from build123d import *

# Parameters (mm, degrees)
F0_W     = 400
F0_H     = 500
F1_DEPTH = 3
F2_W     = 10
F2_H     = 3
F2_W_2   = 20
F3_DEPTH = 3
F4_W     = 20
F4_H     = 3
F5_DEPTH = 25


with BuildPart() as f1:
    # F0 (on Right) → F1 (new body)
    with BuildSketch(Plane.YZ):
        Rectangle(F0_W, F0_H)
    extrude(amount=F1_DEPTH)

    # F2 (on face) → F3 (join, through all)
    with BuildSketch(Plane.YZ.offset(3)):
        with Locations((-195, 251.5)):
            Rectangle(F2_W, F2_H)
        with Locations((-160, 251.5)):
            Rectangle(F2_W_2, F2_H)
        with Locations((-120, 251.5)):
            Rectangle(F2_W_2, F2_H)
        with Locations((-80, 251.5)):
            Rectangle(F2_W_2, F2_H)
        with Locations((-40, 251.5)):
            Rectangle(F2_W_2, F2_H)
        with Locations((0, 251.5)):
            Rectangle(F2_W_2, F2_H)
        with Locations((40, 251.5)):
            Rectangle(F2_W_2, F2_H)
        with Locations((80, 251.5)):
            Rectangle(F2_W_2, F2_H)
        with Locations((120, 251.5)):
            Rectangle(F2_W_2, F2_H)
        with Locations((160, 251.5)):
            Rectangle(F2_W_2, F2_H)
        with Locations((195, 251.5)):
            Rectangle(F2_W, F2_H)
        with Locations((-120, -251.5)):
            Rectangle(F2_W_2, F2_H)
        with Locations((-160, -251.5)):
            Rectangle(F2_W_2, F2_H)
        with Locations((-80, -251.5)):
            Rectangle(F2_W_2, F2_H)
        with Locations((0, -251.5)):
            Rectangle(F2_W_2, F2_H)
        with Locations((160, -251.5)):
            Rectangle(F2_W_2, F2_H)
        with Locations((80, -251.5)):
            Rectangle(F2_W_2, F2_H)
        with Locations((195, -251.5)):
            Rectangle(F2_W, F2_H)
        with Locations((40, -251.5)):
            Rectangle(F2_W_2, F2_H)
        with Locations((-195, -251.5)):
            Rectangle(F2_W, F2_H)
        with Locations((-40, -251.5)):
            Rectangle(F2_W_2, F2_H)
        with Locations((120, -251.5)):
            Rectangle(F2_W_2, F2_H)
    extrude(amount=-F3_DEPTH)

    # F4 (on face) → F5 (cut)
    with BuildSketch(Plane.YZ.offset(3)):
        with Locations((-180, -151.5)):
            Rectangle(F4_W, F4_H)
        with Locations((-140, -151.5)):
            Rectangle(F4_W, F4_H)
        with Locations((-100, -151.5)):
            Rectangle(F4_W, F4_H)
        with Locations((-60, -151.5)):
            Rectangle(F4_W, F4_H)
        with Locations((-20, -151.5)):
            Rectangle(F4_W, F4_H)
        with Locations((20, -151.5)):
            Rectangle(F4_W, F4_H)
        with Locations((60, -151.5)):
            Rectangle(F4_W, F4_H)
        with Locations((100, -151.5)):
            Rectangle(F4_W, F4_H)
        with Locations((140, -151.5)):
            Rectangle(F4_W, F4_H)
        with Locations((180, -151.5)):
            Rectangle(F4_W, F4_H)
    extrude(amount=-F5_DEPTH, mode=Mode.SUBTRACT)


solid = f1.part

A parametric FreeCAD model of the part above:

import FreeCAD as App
import Part
import Sketcher
Q = App.Units.Quantity


def add_polygon(sketch, points):
    """Adds a closed chain of lines whose ends are joined by coincident constraints."""
    first, n = sketch.GeometryCount, len(points)
    for a, b in zip(points, points[1:] + points[:1]):
        sketch.addGeometry(Part.LineSegment(App.Vector(*a, 0), App.Vector(*b, 0)), False)
    for i in range(n):
        sketch.addConstraint(Sketcher.Constraint("Coincident", first + i, 2, first + (i + 1) % n, 1))

doc = App.newDocument("Part")
params = doc.addObject("Spreadsheet::Sheet", "Params")
for row, (alias, value) in enumerate([
    ("sketch1_width", "400 mm"),
    ("sketch1_height", "500 mm"),
    ("pad1_length", "3 mm"),
    ("sketch2_width", "10 mm"),
    ("sketch2_width2", "20 mm"),
    ("sketch2_height", "3 mm"),
    ("sketch3_width", "20 mm"),
    ("sketch3_height", "3 mm"),
    ("pocket1_length", "25 mm"),
], start=1):
    params.set(f"A{row}", alias)
    params.set(f"B{row}", "=" + value)
    params.setAlias(f"B{row}", alias)

body = doc.addObject("PartDesign::Body", "Body")

# Sketch on YZ plane
sketch1 = body.newObject("Sketcher::SketchObject", "Sketch")
sketch1.AttachmentSupport = (doc.getObject("YZ_Plane"), [""])
sketch1.MapMode = "FlatFace"
add_polygon(sketch1, [(-200, 250), (-200, -250), (200, -250), (200, 250)])  # lines 0-3
sketch1.addConstraint(Sketcher.Constraint("Vertical", 0))
sketch1.addConstraint(Sketcher.Constraint("Horizontal", 1))
sketch1.addConstraint(Sketcher.Constraint("Vertical", 2))
sketch1.addConstraint(Sketcher.Constraint("Horizontal", 3))
sketch1.addConstraint(Sketcher.Constraint("Symmetric", 0, 2, 2, 2, -1, 1))
sketch1.addConstraint(Sketcher.Constraint("DistanceX", 1, 1, 1, 2, Q("400 mm")))
sketch1.addConstraint(Sketcher.Constraint("DistanceY", 0, 2, 0, 1, Q("500 mm")))
sketch1.setExpression("Constraints[9]", "Params.sketch1_width")
sketch1.setExpression("Constraints[10]", "Params.sketch1_height")
pad1 = body.newObject("PartDesign::Pad", "Pad")
pad1.Profile = sketch1
pad1.setExpression("Length", "Params.pad1_length")

# Sketch on YZ plane
sketch2 = body.newObject("Sketcher::SketchObject", "Sketch001")
sketch2.AttachmentSupport = (doc.getObject("YZ_Plane"), [""])
sketch2.MapMode = "FlatFace"
sketch2.AttachmentOffset = App.Placement(App.Vector(0, 0, 3), App.Rotation())
add_polygon(sketch2, [(-200, 253), (-200, 250), (-190, 250), (-190, 253)])  # lines 0-3
add_polygon(sketch2, [(-170, 253), (-170, 250), (-150, 250), (-150, 253)])  # lines 4-7
add_polygon(sketch2, [(-130, 253), (-130, 250), (-110, 250), (-110, 253)])  # lines 8-11
add_polygon(sketch2, [(-90, 253), (-90, 250), (-70, 250), (-70, 253)])  # lines 12-15
add_polygon(sketch2, [(-50, 253), (-50, 250), (-30, 250), (-30, 253)])  # lines 16-19
add_polygon(sketch2, [(-10, 253), (-10, 250), (10, 250), (10, 253)])  # lines 20-23
add_polygon(sketch2, [(30, 253), (30, 250), (50, 250), (50, 253)])  # lines 24-27
add_polygon(sketch2, [(70, 253), (70, 250), (90, 250), (90, 253)])  # lines 28-31
add_polygon(sketch2, [(110, 253), (110, 250), (130, 250), (130, 253)])  # lines 32-35
add_polygon(sketch2, [(150, 253), (150, 250), (170, 250), (170, 253)])  # lines 36-39
add_polygon(sketch2, [(190, 253), (190, 250), (200, 250), (200, 253)])  # lines 40-43
add_polygon(sketch2, [(-130, -250), (-130, -253), (-110, -253), (-110, -250)])  # lines 44-47
add_polygon(sketch2, [(-170, -250), (-170, -253), (-150, -253), (-150, -250)])  # lines 48-51
add_polygon(sketch2, [(-90, -250), (-90, -253), (-70, -253), (-70, -250)])  # lines 52-55
add_polygon(sketch2, [(-10, -250), (-10, -253), (10, -253), (10, -250)])  # lines 56-59
add_polygon(sketch2, [(150, -250), (150, -253), (170, -253), (170, -250)])  # lines 60-63
add_polygon(sketch2, [(70, -250), (70, -253), (90, -253), (90, -250)])  # lines 64-67
add_polygon(sketch2, [(190, -250), (190, -253), (200, -253), (200, -250)])  # lines 68-71
add_polygon(sketch2, [(30, -250), (30, -253), (50, -253), (50, -250)])  # lines 72-75
add_polygon(sketch2, [(-200, -250), (-200, -253), (-190, -253), (-190, -250)])  # lines 76-79
add_polygon(sketch2, [(-50, -250), (-50, -253), (-30, -253), (-30, -250)])  # lines 80-83
add_polygon(sketch2, [(110, -250), (110, -253), (130, -253), (130, -250)])  # lines 84-87
sketch2.addConstraint(Sketcher.Constraint("Vertical", 0))
sketch2.addConstraint(Sketcher.Constraint("Horizontal", 1))
sketch2.addConstraint(Sketcher.Constraint("Vertical", 2))
sketch2.addConstraint(Sketcher.Constraint("Horizontal", 3))
sketch2.addConstraint(Sketcher.Constraint("Vertical", 4))
sketch2.addConstraint(Sketcher.Constraint("Horizontal", 5))
sketch2.addConstraint(Sketcher.Constraint("Vertical", 6))
sketch2.addConstraint(Sketcher.Constraint("Horizontal", 7))
sketch2.addConstraint(Sketcher.Constraint("Vertical", 8))
sketch2.addConstraint(Sketcher.Constraint("Horizontal", 9))
sketch2.addConstraint(Sketcher.Constraint("Vertical", 10))
sketch2.addConstraint(Sketcher.Constraint("Horizontal", 11))
sketch2.addConstraint(Sketcher.Constraint("Vertical", 12))
sketch2.addConstraint(Sketcher.Constraint("Horizontal", 13))
sketch2.addConstraint(Sketcher.Constraint("Vertical", 14))
sketch2.addConstraint(Sketcher.Constraint("Horizontal", 15))
sketch2.addConstraint(Sketcher.Constraint("Vertical", 16))
sketch2.addConstraint(Sketcher.Constraint("Horizontal", 17))
sketch2.addConstraint(Sketcher.Constraint("Vertical", 18))
sketch2.addConstraint(Sketcher.Constraint("Horizontal", 19))
sketch2.addConstraint(Sketcher.Constraint("Vertical", 20))
sketch2.addConstraint(Sketcher.Constraint("Horizontal", 21))
sketch2.addConstraint(Sketcher.Constraint("Vertical", 22))
sketch2.addConstraint(Sketcher.Constraint("Horizontal", 23))
sketch2.addConstraint(Sketcher.Constraint("Vertical", 24))
sketch2.addConstraint(Sketcher.Constraint("Horizontal", 25))
sketch2.addConstraint(Sketcher.Constraint("Vertical", 26))
sketch2.addConstraint(Sketcher.Constraint("Horizontal", 27))
sketch2.addConstraint(Sketcher.Constraint("Vertical", 28))
sketch2.addConstraint(Sketcher.Constraint("Horizontal", 29))
sketch2.addConstraint(Sketcher.Constraint("Vertical", 30))
sketch2.addConstraint(Sketcher.Constraint("Horizontal", 31))
sketch2.addConstraint(Sketcher.Constraint("Vertical", 32))
sketch2.addConstraint(Sketcher.Constraint("Horizontal", 33))
sketch2.addConstraint(Sketcher.Constraint("Vertical", 34))
sketch2.addConstraint(Sketcher.Constraint("Horizontal", 35))
sketch2.addConstraint(Sketcher.Constraint("Vertical", 36))
sketch2.addConstraint(Sketcher.Constraint("Horizontal", 37))
sketch2.addConstraint(Sketcher.Constraint("Vertical", 38))
sketch2.addConstraint(Sketcher.Constraint("Horizontal", 39))
sketch2.addConstraint(Sketcher.Constraint("Vertical", 40))
sketch2.addConstraint(Sketcher.Constraint("Horizontal", 41))
sketch2.addConstraint(Sketcher.Constraint("Vertical", 42))
sketch2.addConstraint(Sketcher.Constraint("Horizontal", 43))
sketch2.addConstraint(Sketcher.Constraint("Vertical", 44))
sketch2.addConstraint(Sketcher.Constraint("Horizontal", 45))
sketch2.addConstraint(Sketcher.Constraint("Vertical", 46))
sketch2.addConstraint(Sketcher.Constraint("Horizontal", 47))
sketch2.addConstraint(Sketcher.Constraint("Vertical", 48))
sketch2.addConstraint(Sketcher.Constraint("Horizontal", 49))
sketch2.addConstraint(Sketcher.Constraint("Vertical", 50))
sketch2.addConstraint(Sketcher.Constraint("Horizontal", 51))
sketch2.addConstraint(Sketcher.Constraint("Vertical", 52))
sketch2.addConstraint(Sketcher.Constraint("Horizontal", 53))
sketch2.addConstraint(Sketcher.Constraint("Vertical", 54))
sketch2.addConstraint(Sketcher.Constraint("Horizontal", 55))
sketch2.addConstraint(Sketcher.Constraint("Vertical", 56))
sketch2.addConstraint(Sketcher.Constraint("Horizontal", 57))
sketch2.addConstraint(Sketcher.Constraint("Vertical", 58))
sketch2.addConstraint(Sketcher.Constraint("Horizontal", 59))
sketch2.addConstraint(Sketcher.Constraint("Vertical", 60))
sketch2.addConstraint(Sketcher.Constraint("Horizontal", 61))
sketch2.addConstraint(Sketcher.Constraint("Vertical", 62))
sketch2.addConstraint(Sketcher.Constraint("Horizontal", 63))
sketch2.addConstraint(Sketcher.Constraint("Vertical", 64))
sketch2.addConstraint(Sketcher.Constraint("Horizontal", 65))
sketch2.addConstraint(Sketcher.Constraint("Vertical", 66))
sketch2.addConstraint(Sketcher.Constraint("Horizontal", 67))
sketch2.addConstraint(Sketcher.Constraint("Vertical", 68))
sketch2.addConstraint(Sketcher.Constraint("Horizontal", 69))
sketch2.addConstraint(Sketcher.Constraint("Vertical", 70))
sketch2.addConstraint(Sketcher.Constraint("Horizontal", 71))
sketch2.addConstraint(Sketcher.Constraint("Vertical", 72))
sketch2.addConstraint(Sketcher.Constraint("Horizontal", 73))
sketch2.addConstraint(Sketcher.Constraint("Vertical", 74))
sketch2.addConstraint(Sketcher.Constraint("Horizontal", 75))
sketch2.addConstraint(Sketcher.Constraint("Vertical", 76))
sketch2.addConstraint(Sketcher.Constraint("Horizontal", 77))
sketch2.addConstraint(Sketcher.Constraint("Vertical", 78))
sketch2.addConstraint(Sketcher.Constraint("Horizontal", 79))
sketch2.addConstraint(Sketcher.Constraint("Vertical", 80))
sketch2.addConstraint(Sketcher.Constraint("Horizontal", 81))
sketch2.addConstraint(Sketcher.Constraint("Vertical", 82))
sketch2.addConstraint(Sketcher.Constraint("Horizontal", 83))
sketch2.addConstraint(Sketcher.Constraint("Vertical", 84))
sketch2.addConstraint(Sketcher.Constraint("Horizontal", 85))
sketch2.addConstraint(Sketcher.Constraint("Vertical", 86))
sketch2.addConstraint(Sketcher.Constraint("Horizontal", 87))
sketch2.addConstraint(Sketcher.Constraint("Symmetric", 34, 2, 44, 2, -1, 1))
sketch2.addConstraint(Sketcher.Constraint("Symmetric", 32, 2, 46, 2, -1, 1))
sketch2.addConstraint(Sketcher.Constraint("Symmetric", 38, 2, 48, 2, -1, 1))
sketch2.addConstraint(Sketcher.Constraint("Symmetric", 36, 2, 50, 2, -1, 1))
sketch2.addConstraint(Sketcher.Constraint("Symmetric", 30, 2, 52, 2, -1, 1))
sketch2.addConstraint(Sketcher.Constraint("Symmetric", 28, 2, 54, 2, -1, 1))
sketch2.addConstraint(Sketcher.Constraint("Symmetric", 22, 2, 56, 2, -1, 1))
sketch2.addConstraint(Sketcher.Constraint("Symmetric", 20, 2, 58, 2, -1, 1))
sketch2.addConstraint(Sketcher.Constraint("Symmetric", 6, 2, 60, 2, -1, 1))
sketch2.addConstraint(Sketcher.Constraint("Symmetric", 4, 2, 62, 2, -1, 1))
sketch2.addConstraint(Sketcher.Constraint("Symmetric", 14, 2, 64, 2, -1, 1))
sketch2.addConstraint(Sketcher.Constraint("Symmetric", 12, 2, 66, 2, -1, 1))
sketch2.addConstraint(Sketcher.Constraint("Symmetric", 2, 2, 68, 2, -1, 1))
sketch2.addConstraint(Sketcher.Constraint("Symmetric", 0, 2, 70, 2, -1, 1))
sketch2.addConstraint(Sketcher.Constraint("Symmetric", 18, 2, 72, 2, -1, 1))
sketch2.addConstraint(Sketcher.Constraint("Symmetric", 16, 2, 74, 2, -1, 1))
sketch2.addConstraint(Sketcher.Constraint("Symmetric", 42, 2, 76, 2, -1, 1))
sketch2.addConstraint(Sketcher.Constraint("Symmetric", 40, 2, 78, 2, -1, 1))
sketch2.addConstraint(Sketcher.Constraint("Symmetric", 26, 2, 80, 2, -1, 1))
sketch2.addConstraint(Sketcher.Constraint("Symmetric", 24, 2, 82, 2, -1, 1))
sketch2.addConstraint(Sketcher.Constraint("Symmetric", 10, 2, 84, 2, -1, 1))
sketch2.addConstraint(Sketcher.Constraint("Symmetric", 8, 2, 86, 2, -1, 1))
sketch2.addConstraint(Sketcher.Constraint("Symmetric", 17, 2, 24, 2, -2))
sketch2.addConstraint(Sketcher.Constraint("Symmetric", 19, 2, 26, 2, -2))
sketch2.addConstraint(Sketcher.Constraint("Symmetric", 13, 2, 28, 2, -2))
sketch2.addConstraint(Sketcher.Constraint("Symmetric", 15, 2, 30, 2, -2))
sketch2.addConstraint(Sketcher.Constraint("Symmetric", 9, 2, 32, 2, -2))
sketch2.addConstraint(Sketcher.Constraint("Symmetric", 11, 2, 34, 2, -2))
sketch2.addConstraint(Sketcher.Constraint("Symmetric", 5, 2, 36, 2, -2))
sketch2.addConstraint(Sketcher.Constraint("Symmetric", 7, 2, 38, 2, -2))
sketch2.addConstraint(Sketcher.Constraint("Symmetric", 1, 2, 40, 2, -2))
sketch2.addConstraint(Sketcher.Constraint("Symmetric", 3, 2, 42, 2, -2))
sketch2.addConstraint(Sketcher.Constraint("Horizontal", 1, 2, 4, 2))
sketch2.addConstraint(Sketcher.Constraint("Horizontal", 3, 2, 6, 2))
sketch2.addConstraint(Sketcher.Constraint("Horizontal", 5, 2, 8, 2))
sketch2.addConstraint(Sketcher.Constraint("Horizontal", 7, 2, 10, 2))
sketch2.addConstraint(Sketcher.Constraint("Horizontal", 9, 2, 12, 2))
sketch2.addConstraint(Sketcher.Constraint("Horizontal", 11, 2, 14, 2))
sketch2.addConstraint(Sketcher.Constraint("Horizontal", 13, 2, 16, 2))
sketch2.addConstraint(Sketcher.Constraint("Horizontal", 15, 2, 18, 2))
sketch2.addConstraint(Sketcher.Constraint("Horizontal", 17, 2, 20, 2))
sketch2.addConstraint(Sketcher.Constraint("Horizontal", 19, 2, 22, 2))
sketch2.addConstraint(Sketcher.Constraint("Vertical", 23, 2, 56, 2))
sketch2.addConstraint(Sketcher.Constraint("Equal", 7, 9))
sketch2.addConstraint(Sketcher.Constraint("Equal", 11, 13))
sketch2.addConstraint(Sketcher.Constraint("Equal", 15, 17))
sketch2.addConstraint(Sketcher.Constraint("Equal", 19, 21))
sketch2.addConstraint(Sketcher.Constraint("DistanceX", 1, 1, 1, 2, Q("10 mm")))
sketch2.addConstraint(Sketcher.Constraint("DistanceX", 5, 1, 5, 2, Q("20 mm")))
sketch2.addConstraint(Sketcher.Constraint("DistanceY", 0, 2, 0, 1, Q("3 mm")))
sketch2.addConstraint(Sketcher.Constraint("DistanceX", 0, 2, -1, 1, Q("200 mm")))
sketch2.addConstraint(Sketcher.Constraint("DistanceY", -1, 1, 0, 2, Q("250 mm")))
sketch2.addConstraint(Sketcher.Constraint("DistanceX", 4, 2, -1, 1, Q("170 mm")))
sketch2.addConstraint(Sketcher.Constraint("DistanceX", 8, 2, -1, 1, Q("130 mm")))
sketch2.addConstraint(Sketcher.Constraint("DistanceX", 12, 2, -1, 1, Q("90 mm")))
sketch2.addConstraint(Sketcher.Constraint("DistanceX", 16, 2, -1, 1, Q("50 mm")))
sketch2.setExpression("Constraints[223]", "Params.sketch2_width")
sketch2.setExpression("Constraints[224]", "Params.sketch2_width2")
sketch2.setExpression("Constraints[225]", "Params.sketch2_height")
pad2 = body.newObject("PartDesign::Pad", "Pad001")
pad2.Profile = sketch2
pad2.Type = "UpToLast"
pad2.Reversed = True

# Sketch on YZ plane
sketch3 = body.newObject("Sketcher::SketchObject", "Sketch002")
sketch3.AttachmentSupport = (doc.getObject("YZ_Plane"), [""])
sketch3.MapMode = "FlatFace"
sketch3.AttachmentOffset = App.Placement(App.Vector(0, 0, 3), App.Rotation())
add_polygon(sketch3, [(-190, -150), (-190, -153), (-170, -153), (-170, -150)])  # lines 0-3
add_polygon(sketch3, [(-150, -150), (-150, -153), (-130, -153), (-130, -150)])  # lines 4-7
add_polygon(sketch3, [(-110, -150), (-110, -153), (-90, -153), (-90, -150)])  # lines 8-11
add_polygon(sketch3, [(-70, -150), (-70, -153), (-50, -153), (-50, -150)])  # lines 12-15
add_polygon(sketch3, [(-30, -150), (-30, -153), (-10, -153), (-10, -150)])  # lines 16-19
add_polygon(sketch3, [(10, -150), (10, -153), (30, -153), (30, -150)])  # lines 20-23
add_polygon(sketch3, [(50, -150), (50, -153), (70, -153), (70, -150)])  # lines 24-27
add_polygon(sketch3, [(90, -150), (90, -153), (110, -153), (110, -150)])  # lines 28-31
add_polygon(sketch3, [(130, -150), (130, -153), (150, -153), (150, -150)])  # lines 32-35
add_polygon(sketch3, [(170, -150), (170, -153), (190, -153), (190, -150)])  # lines 36-39
sketch3.addConstraint(Sketcher.Constraint("Vertical", 0))
sketch3.addConstraint(Sketcher.Constraint("Horizontal", 1))
sketch3.addConstraint(Sketcher.Constraint("Vertical", 2))
sketch3.addConstraint(Sketcher.Constraint("Horizontal", 3))
sketch3.addConstraint(Sketcher.Constraint("Vertical", 4))
sketch3.addConstraint(Sketcher.Constraint("Horizontal", 5))
sketch3.addConstraint(Sketcher.Constraint("Vertical", 6))
sketch3.addConstraint(Sketcher.Constraint("Horizontal", 7))
sketch3.addConstraint(Sketcher.Constraint("Vertical", 8))
sketch3.addConstraint(Sketcher.Constraint("Horizontal", 9))
sketch3.addConstraint(Sketcher.Constraint("Vertical", 10))
sketch3.addConstraint(Sketcher.Constraint("Horizontal", 11))
sketch3.addConstraint(Sketcher.Constraint("Vertical", 12))
sketch3.addConstraint(Sketcher.Constraint("Horizontal", 13))
sketch3.addConstraint(Sketcher.Constraint("Vertical", 14))
sketch3.addConstraint(Sketcher.Constraint("Horizontal", 15))
sketch3.addConstraint(Sketcher.Constraint("Vertical", 16))
sketch3.addConstraint(Sketcher.Constraint("Horizontal", 17))
sketch3.addConstraint(Sketcher.Constraint("Vertical", 18))
sketch3.addConstraint(Sketcher.Constraint("Horizontal", 19))
sketch3.addConstraint(Sketcher.Constraint("Vertical", 20))
sketch3.addConstraint(Sketcher.Constraint("Horizontal", 21))
sketch3.addConstraint(Sketcher.Constraint("Vertical", 22))
sketch3.addConstraint(Sketcher.Constraint("Horizontal", 23))
sketch3.addConstraint(Sketcher.Constraint("Vertical", 24))
sketch3.addConstraint(Sketcher.Constraint("Horizontal", 25))
sketch3.addConstraint(Sketcher.Constraint("Vertical", 26))
sketch3.addConstraint(Sketcher.Constraint("Horizontal", 27))
sketch3.addConstraint(Sketcher.Constraint("Vertical", 28))
sketch3.addConstraint(Sketcher.Constraint("Horizontal", 29))
sketch3.addConstraint(Sketcher.Constraint("Vertical", 30))
sketch3.addConstraint(Sketcher.Constraint("Horizontal", 31))
sketch3.addConstraint(Sketcher.Constraint("Vertical", 32))
sketch3.addConstraint(Sketcher.Constraint("Horizontal", 33))
sketch3.addConstraint(Sketcher.Constraint("Vertical", 34))
sketch3.addConstraint(Sketcher.Constraint("Horizontal", 35))
sketch3.addConstraint(Sketcher.Constraint("Vertical", 36))
sketch3.addConstraint(Sketcher.Constraint("Horizontal", 37))
sketch3.addConstraint(Sketcher.Constraint("Vertical", 38))
sketch3.addConstraint(Sketcher.Constraint("Horizontal", 39))
sketch3.addConstraint(Sketcher.Constraint("Symmetric", 17, 2, 20, 2, -2))
sketch3.addConstraint(Sketcher.Constraint("Symmetric", 19, 2, 22, 2, -2))
sketch3.addConstraint(Sketcher.Constraint("Symmetric", 13, 2, 24, 2, -2))
sketch3.addConstraint(Sketcher.Constraint("Symmetric", 15, 2, 26, 2, -2))
sketch3.addConstraint(Sketcher.Constraint("Symmetric", 9, 2, 28, 2, -2))
sketch3.addConstraint(Sketcher.Constraint("Symmetric", 11, 2, 30, 2, -2))
sketch3.addConstraint(Sketcher.Constraint("Symmetric", 5, 2, 32, 2, -2))
sketch3.addConstraint(Sketcher.Constraint("Symmetric", 7, 2, 34, 2, -2))
sketch3.addConstraint(Sketcher.Constraint("Symmetric", 1, 2, 36, 2, -2))
sketch3.addConstraint(Sketcher.Constraint("Symmetric", 3, 2, 38, 2, -2))
sketch3.addConstraint(Sketcher.Constraint("Horizontal", 1, 2, 4, 2))
sketch3.addConstraint(Sketcher.Constraint("Horizontal", 3, 2, 6, 2))
sketch3.addConstraint(Sketcher.Constraint("Horizontal", 5, 2, 8, 2))
sketch3.addConstraint(Sketcher.Constraint("Horizontal", 7, 2, 10, 2))
sketch3.addConstraint(Sketcher.Constraint("Horizontal", 9, 2, 12, 2))
sketch3.addConstraint(Sketcher.Constraint("Horizontal", 11, 2, 14, 2))
sketch3.addConstraint(Sketcher.Constraint("Horizontal", 13, 2, 16, 2))
sketch3.addConstraint(Sketcher.Constraint("Horizontal", 15, 2, 18, 2))
sketch3.addConstraint(Sketcher.Constraint("Equal", 3, 5))
sketch3.addConstraint(Sketcher.Constraint("Equal", 7, 9))
sketch3.addConstraint(Sketcher.Constraint("Equal", 11, 13))
sketch3.addConstraint(Sketcher.Constraint("Equal", 15, 17))
sketch3.addConstraint(Sketcher.Constraint("DistanceX", 1, 1, 1, 2, Q("20 mm")))
sketch3.addConstraint(Sketcher.Constraint("DistanceY", 0, 2, 0, 1, Q("3 mm")))
sketch3.addConstraint(Sketcher.Constraint("DistanceX", 0, 2, -1, 1, Q("190 mm")))
sketch3.addConstraint(Sketcher.Constraint("DistanceY", 0, 2, -1, 1, Q("153 mm")))
sketch3.addConstraint(Sketcher.Constraint("DistanceX", 4, 2, -1, 1, Q("150 mm")))
sketch3.addConstraint(Sketcher.Constraint("DistanceX", 8, 2, -1, 1, Q("110 mm")))
sketch3.addConstraint(Sketcher.Constraint("DistanceX", 12, 2, -1, 1, Q("70 mm")))
sketch3.addConstraint(Sketcher.Constraint("DistanceX", 16, 2, -1, 1, Q("30 mm")))
sketch3.setExpression("Constraints[102]", "Params.sketch3_width")
sketch3.setExpression("Constraints[103]", "Params.sketch3_height")
pocket1 = body.newObject("PartDesign::Pocket", "Pocket")
pocket1.Profile = sketch3
pocket1.setExpression("Length", "Params.pocket1_length")

doc.recompute()
